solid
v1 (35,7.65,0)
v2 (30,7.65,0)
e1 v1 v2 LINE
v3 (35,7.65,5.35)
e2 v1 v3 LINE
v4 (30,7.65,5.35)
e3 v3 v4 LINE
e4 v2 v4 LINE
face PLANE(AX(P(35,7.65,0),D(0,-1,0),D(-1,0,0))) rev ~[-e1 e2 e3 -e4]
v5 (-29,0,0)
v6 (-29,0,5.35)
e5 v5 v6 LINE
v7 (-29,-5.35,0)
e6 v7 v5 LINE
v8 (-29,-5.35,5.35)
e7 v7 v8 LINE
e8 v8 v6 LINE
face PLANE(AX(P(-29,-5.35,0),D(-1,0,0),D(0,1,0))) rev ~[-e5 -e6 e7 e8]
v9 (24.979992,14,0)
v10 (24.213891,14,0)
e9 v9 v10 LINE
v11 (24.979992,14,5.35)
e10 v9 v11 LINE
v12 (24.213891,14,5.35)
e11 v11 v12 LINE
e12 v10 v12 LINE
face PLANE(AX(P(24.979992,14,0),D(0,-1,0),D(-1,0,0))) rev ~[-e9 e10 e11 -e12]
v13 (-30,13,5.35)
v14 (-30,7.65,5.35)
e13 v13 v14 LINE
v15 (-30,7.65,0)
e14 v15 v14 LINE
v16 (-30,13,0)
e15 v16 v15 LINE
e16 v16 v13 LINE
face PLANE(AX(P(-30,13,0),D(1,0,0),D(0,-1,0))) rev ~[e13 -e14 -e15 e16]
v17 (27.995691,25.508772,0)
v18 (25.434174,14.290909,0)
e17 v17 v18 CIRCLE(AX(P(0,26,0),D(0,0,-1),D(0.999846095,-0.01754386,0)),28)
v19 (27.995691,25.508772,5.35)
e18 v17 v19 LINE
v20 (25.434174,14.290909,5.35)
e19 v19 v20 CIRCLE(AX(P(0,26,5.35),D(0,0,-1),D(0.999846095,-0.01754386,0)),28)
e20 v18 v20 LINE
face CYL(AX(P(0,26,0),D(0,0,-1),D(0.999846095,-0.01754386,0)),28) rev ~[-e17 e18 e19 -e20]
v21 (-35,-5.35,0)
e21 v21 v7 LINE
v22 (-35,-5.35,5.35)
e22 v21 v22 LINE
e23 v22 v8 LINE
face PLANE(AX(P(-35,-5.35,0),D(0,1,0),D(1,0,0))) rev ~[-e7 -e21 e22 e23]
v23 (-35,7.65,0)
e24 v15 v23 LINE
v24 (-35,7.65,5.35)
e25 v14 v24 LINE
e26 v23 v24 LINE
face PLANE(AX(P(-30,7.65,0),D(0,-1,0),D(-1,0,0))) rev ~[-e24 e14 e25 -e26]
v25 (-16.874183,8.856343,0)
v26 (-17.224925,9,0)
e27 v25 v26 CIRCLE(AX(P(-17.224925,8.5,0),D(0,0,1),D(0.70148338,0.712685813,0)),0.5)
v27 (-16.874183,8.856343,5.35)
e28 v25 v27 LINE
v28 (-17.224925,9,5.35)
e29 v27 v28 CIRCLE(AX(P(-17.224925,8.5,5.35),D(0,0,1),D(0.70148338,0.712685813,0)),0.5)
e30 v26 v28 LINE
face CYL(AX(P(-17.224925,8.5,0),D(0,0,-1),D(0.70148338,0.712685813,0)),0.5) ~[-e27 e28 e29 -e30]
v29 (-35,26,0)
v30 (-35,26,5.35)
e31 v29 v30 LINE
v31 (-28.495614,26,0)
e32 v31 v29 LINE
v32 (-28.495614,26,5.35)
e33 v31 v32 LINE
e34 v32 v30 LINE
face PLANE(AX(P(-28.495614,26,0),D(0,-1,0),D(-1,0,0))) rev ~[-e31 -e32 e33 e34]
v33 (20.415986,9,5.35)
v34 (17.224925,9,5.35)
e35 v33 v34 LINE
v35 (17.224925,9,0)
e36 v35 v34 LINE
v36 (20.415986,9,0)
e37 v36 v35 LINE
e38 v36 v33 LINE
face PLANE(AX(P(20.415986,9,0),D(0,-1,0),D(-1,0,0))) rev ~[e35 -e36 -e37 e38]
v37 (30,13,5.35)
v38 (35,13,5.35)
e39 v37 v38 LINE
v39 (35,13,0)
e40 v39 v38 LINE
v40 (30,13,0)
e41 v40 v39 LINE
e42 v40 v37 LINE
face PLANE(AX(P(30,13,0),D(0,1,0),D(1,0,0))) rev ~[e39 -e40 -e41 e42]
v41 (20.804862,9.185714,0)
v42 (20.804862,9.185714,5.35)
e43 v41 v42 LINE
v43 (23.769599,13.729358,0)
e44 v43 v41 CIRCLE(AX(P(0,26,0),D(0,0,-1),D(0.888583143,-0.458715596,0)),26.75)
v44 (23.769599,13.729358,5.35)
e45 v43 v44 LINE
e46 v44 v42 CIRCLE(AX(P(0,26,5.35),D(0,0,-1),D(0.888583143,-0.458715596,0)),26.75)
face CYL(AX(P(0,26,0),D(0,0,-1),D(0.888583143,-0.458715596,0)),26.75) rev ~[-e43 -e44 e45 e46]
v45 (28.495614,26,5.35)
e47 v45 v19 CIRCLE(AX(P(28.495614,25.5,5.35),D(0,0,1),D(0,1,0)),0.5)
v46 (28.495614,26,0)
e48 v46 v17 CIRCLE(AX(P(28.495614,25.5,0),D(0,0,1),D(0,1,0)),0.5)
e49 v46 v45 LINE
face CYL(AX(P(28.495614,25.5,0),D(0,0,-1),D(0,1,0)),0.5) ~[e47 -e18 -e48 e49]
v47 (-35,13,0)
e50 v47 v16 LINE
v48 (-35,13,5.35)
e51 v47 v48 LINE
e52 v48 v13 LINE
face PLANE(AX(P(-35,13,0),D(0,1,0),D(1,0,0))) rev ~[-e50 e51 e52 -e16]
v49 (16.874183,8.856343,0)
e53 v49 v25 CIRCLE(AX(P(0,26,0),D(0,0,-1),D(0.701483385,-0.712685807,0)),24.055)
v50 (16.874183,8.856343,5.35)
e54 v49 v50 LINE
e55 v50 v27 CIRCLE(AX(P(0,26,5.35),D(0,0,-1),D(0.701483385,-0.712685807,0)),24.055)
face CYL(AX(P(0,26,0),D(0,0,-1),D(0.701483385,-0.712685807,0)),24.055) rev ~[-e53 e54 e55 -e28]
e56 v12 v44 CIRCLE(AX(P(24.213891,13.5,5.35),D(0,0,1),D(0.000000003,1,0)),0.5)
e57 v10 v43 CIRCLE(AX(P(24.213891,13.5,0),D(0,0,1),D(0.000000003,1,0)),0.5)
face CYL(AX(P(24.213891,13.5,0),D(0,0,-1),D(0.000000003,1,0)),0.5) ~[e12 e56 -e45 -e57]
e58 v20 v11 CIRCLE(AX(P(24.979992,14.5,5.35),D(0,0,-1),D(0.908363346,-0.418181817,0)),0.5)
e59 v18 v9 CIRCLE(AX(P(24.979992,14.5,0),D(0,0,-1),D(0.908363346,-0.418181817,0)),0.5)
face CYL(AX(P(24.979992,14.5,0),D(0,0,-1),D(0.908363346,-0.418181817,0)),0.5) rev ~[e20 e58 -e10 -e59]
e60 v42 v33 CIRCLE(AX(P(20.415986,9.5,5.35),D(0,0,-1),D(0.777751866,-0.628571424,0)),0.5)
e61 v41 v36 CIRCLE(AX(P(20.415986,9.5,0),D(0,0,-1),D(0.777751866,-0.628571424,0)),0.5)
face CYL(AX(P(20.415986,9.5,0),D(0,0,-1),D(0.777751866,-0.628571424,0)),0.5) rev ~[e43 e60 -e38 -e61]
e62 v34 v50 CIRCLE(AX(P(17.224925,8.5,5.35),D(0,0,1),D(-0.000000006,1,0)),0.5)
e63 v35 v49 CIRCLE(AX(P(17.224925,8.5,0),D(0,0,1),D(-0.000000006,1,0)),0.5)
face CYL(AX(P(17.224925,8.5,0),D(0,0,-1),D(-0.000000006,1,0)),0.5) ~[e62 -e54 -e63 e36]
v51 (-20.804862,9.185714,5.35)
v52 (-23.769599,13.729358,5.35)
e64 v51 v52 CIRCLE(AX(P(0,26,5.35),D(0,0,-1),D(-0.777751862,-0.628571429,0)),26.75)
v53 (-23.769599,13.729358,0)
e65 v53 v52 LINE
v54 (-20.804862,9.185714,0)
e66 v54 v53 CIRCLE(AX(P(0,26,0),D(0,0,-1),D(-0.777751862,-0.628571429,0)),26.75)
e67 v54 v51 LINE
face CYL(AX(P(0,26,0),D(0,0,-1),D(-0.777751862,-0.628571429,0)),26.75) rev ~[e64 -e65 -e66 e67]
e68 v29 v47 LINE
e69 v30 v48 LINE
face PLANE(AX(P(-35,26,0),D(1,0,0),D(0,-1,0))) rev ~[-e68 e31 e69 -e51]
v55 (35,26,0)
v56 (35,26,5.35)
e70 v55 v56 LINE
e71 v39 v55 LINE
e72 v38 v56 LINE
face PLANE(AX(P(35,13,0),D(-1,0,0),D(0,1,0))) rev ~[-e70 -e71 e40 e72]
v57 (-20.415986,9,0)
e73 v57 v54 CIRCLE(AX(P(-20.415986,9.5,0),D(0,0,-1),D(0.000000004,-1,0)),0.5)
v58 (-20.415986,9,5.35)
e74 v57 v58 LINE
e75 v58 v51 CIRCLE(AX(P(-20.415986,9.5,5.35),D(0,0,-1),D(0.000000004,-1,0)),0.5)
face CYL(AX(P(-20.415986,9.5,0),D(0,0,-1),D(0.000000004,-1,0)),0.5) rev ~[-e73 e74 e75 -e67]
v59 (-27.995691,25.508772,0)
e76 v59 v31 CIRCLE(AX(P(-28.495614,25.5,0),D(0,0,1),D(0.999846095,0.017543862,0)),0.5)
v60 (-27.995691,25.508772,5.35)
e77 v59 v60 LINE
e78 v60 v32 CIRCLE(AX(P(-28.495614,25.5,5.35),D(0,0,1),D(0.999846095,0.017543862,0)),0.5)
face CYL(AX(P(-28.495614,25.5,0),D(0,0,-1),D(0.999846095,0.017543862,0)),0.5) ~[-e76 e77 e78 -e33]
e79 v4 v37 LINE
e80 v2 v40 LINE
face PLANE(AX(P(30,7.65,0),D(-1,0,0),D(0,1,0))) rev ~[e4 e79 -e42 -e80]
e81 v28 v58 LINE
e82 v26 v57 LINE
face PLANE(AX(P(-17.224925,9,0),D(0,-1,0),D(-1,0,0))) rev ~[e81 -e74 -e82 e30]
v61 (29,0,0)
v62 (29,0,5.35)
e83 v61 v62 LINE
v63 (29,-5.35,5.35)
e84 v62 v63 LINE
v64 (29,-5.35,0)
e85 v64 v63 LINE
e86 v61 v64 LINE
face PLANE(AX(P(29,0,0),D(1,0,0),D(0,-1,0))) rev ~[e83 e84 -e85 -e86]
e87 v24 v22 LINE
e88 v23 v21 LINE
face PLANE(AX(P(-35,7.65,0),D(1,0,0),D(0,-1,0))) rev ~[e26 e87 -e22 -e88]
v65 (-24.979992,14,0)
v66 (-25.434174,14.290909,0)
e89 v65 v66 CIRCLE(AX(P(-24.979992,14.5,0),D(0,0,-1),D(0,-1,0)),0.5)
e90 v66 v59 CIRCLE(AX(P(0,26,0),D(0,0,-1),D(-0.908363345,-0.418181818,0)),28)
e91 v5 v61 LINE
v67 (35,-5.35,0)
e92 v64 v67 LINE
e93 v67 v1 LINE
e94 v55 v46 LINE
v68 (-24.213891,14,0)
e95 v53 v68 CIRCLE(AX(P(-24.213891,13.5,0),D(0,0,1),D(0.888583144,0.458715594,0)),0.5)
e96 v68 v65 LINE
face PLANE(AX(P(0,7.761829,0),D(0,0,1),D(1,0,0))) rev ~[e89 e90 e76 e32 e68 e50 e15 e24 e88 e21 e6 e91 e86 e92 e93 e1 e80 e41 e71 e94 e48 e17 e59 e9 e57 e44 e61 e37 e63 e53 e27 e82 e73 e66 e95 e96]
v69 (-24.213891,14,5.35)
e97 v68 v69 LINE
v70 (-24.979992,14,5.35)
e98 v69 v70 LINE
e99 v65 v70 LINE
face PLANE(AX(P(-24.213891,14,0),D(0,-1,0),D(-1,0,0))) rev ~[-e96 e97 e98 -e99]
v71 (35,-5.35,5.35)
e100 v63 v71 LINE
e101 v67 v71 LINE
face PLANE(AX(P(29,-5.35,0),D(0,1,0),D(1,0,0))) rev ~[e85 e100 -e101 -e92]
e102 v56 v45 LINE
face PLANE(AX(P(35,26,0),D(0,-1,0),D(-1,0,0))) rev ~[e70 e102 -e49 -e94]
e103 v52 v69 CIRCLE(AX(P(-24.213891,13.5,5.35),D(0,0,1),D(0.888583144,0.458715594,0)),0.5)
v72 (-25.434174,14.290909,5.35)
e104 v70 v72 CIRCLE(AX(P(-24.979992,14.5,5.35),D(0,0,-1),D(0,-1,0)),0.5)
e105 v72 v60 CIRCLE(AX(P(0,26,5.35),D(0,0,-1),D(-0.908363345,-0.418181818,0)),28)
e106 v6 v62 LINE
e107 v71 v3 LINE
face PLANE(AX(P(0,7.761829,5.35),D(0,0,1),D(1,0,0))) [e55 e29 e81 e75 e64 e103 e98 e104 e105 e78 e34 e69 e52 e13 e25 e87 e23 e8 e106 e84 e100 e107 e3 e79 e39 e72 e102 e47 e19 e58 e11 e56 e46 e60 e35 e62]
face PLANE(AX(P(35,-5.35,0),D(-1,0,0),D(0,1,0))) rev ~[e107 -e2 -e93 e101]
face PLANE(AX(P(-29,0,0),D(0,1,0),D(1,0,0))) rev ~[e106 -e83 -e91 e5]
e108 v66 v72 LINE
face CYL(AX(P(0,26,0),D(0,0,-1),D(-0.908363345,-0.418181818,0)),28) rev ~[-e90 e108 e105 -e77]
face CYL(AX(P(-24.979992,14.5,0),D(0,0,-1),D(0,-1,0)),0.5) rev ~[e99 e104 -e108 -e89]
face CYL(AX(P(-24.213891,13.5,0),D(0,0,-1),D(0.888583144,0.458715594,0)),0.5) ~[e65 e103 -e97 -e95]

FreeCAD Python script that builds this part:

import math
import FreeCAD as App
import Part
import Sketcher

V = App.Vector
Q = App.Units.Quantity

doc = App.newDocument("Part")
body = doc.addObject("PartDesign::Body", "Body")

sketch1 = body.newObject("Sketcher::SketchObject", "Sketch")
sketch1.AttachmentSupport = (doc.getObject("XY_Plane"), [""])
sketch1.MapMode = "FlatFace"
sketch1.addGeometry([
    Part.LineSegment(V(-29, 0, 0), V(29, 0, 0)),
    Part.LineSegment(V(29, 0, 0), V(29, -5.35, 0)),
    Part.LineSegment(V(29, -5.35, 0), V(35, -5.35, 0)),
    Part.LineSegment(V(35, -5.35, 0), V(35, 7.65, 0)),
    Part.LineSegment(V(35, 7.65, 0), V(30, 7.65, 0)),
    Part.LineSegment(V(30, 7.65, 0), V(30, 13, 0)),
    Part.LineSegment(V(30, 13, 0), V(35, 13, 0)),
    Part.LineSegment(V(35, 13, 0), V(35, 26, 0)),
    Part.LineSegment(V(35, 26, 0), V(28.5, 26, 0)),
    Part.ArcOfCircle(Part.Circle(V(28.5, 25.5, 0), V(0, 0, 1), 0.5), math.radians(90), math.radians(179)),
    Part.ArcOfCircle(Part.Circle(V(0, 26, 0), V(0, 0, 1), 28), math.radians(-25), math.radians(-1)),
    Part.ArcOfCircle(Part.Circle(V(24.98, 14.5, 0), V(0, 0, 1), 0.5), math.radians(-90), math.radians(-25)),
    Part.LineSegment(V(24.98, 14, 0), V(24.21, 14, 0)),
    Part.ArcOfCircle(Part.Circle(V(24.21, 13.5, 0), V(0, 0, 1), 0.5), math.radians(90), math.radians(153)),
    Part.ArcOfCircle(Part.Circle(V(0, 26, 0), V(0, 0, 1), 26.75), math.radians(-38.94), math.radians(-27.3)),
    Part.ArcOfCircle(Part.Circle(V(20.42, 9.5, 0), V(0, 0, 1), 0.5), math.radians(-90), math.radians(-39)),
    Part.LineSegment(V(20.42, 9, 0), V(17.22, 9, 0)),
    Part.ArcOfCircle(Part.Circle(V(17.22, 8.5, 0), V(0, 0, 1), 0.5), math.radians(90), math.radians(135)),
    Part.ArcOfCircle(Part.Circle(V(0, 26, 0), V(0, 0, 1), 24.05), math.radians(-135), math.radians(-45)),
    Part.ArcOfCircle(Part.Circle(V(-17.22, 8.5, 0), V(0, 0, 1), 0.5), math.radians(45), math.radians(90)),
    Part.LineSegment(V(-17.22, 9, 0), V(-20.42, 9, 0)),
    Part.ArcOfCircle(Part.Circle(V(-20.42, 9.5, 0), V(0, 0, 1), 0.5), math.radians(-141), math.radians(-90)),
    Part.ArcOfCircle(Part.Circle(V(0, 26, 0), V(0, 0, 1), 26.75), math.radians(-152.7), math.radians(-141.06)),
    Part.ArcOfCircle(Part.Circle(V(-24.21, 13.5, 0), V(0, 0, 1), 0.5), math.radians(27), math.radians(90)),
    Part.LineSegment(V(-24.21, 14, 0), V(-24.98, 14, 0)),
    Part.ArcOfCircle(Part.Circle(V(-24.98, 14.5, 0), V(0, 0, 1), 0.5), math.radians(-155), math.radians(-90)),
    Part.ArcOfCircle(Part.Circle(V(0, 26, 0), V(0, 0, 1), 28), math.radians(-179), math.radians(-155)),
    Part.ArcOfCircle(Part.Circle(V(-28.5, 25.5, 0), V(0, 0, 1), 0.5), math.radians(1), math.radians(90)),
    Part.LineSegment(V(-28.5, 26, 0), V(-35, 26, 0)),
    Part.LineSegment(V(-35, 26, 0), V(-35, 13, 0)),
    Part.LineSegment(V(-35, 13, 0), V(-30, 13, 0)),
    Part.LineSegment(V(-30, 13, 0), V(-30, 7.65, 0)),
    Part.LineSegment(V(-30, 7.65, 0), V(-35, 7.65, 0)),
    Part.LineSegment(V(-35, 7.65, 0), V(-35, -5.35, 0)),
    Part.LineSegment(V(-35, -5.35, 0), V(-29, -5.35, 0)),
    Part.LineSegment(V(-29, -5.35, 0), V(-29, 0, 0)),
], False)
sketch1.addConstraint([
    Sketcher.Constraint("Coincident", 0, 2, 1, 1),
    Sketcher.Constraint("Coincident", 1, 2, 2, 1),
    Sketcher.Constraint("Coincident", 2, 2, 3, 1),
    Sketcher.Constraint("Coincident", 3, 2, 4, 1),
    Sketcher.Constraint("Coincident", 4, 2, 5, 1),
    Sketcher.Constraint("Coincident", 5, 2, 6, 1),
    Sketcher.Constraint("Coincident", 6, 2, 7, 1),
    Sketcher.Constraint("Coincident", 7, 2, 8, 1),
    Sketcher.Constraint("Tangent", 8, 2, 9, 1),
    Sketcher.Constraint("Tangent", 9, 2, 10, 2),
    Sketcher.Constraint("Tangent", 10, 1, 11, 2),
    Sketcher.Constraint("Tangent", 11, 1, 12, 1),
    Sketcher.Constraint("Tangent", 12, 2, 13, 1),
    Sketcher.Constraint("Tangent", 13, 2, 14, 2),
    Sketcher.Constraint("Tangent", 14, 1, 15, 2),
    Sketcher.Constraint("Tangent", 15, 1, 16, 1),
    Sketcher.Constraint("Tangent", 16, 2, 17, 1),
    Sketcher.Constraint("Tangent", 17, 2, 18, 2),
    Sketcher.Constraint("Tangent", 18, 1, 19, 1),
    Sketcher.Constraint("Tangent", 19, 2, 20, 1),
    Sketcher.Constraint("Tangent", 20, 2, 21, 2),
    Sketcher.Constraint("Tangent", 21, 1, 22, 2),
    Sketcher.Constraint("Tangent", 22, 1, 23, 1),
    Sketcher.Constraint("Tangent", 23, 2, 24, 1),
    Sketcher.Constraint("Tangent", 24, 2, 25, 2),
    Sketcher.Constraint("Tangent", 25, 1, 26, 2),
    Sketcher.Constraint("Tangent", 26, 1, 27, 1),
    Sketcher.Constraint("Tangent", 27, 2, 28, 1),
    Sketcher.Constraint("Coincident", 28, 2, 29, 1),
    Sketcher.Constraint("Coincident", 29, 2, 30, 1),
    Sketcher.Constraint("Coincident", 30, 2, 31, 1),
    Sketcher.Constraint("Coincident", 31, 2, 32, 1),
    Sketcher.Constraint("Coincident", 32, 2, 33, 1),
    Sketcher.Constraint("Coincident", 33, 2, 34, 1),
    Sketcher.Constraint("Coincident", 34, 2, 35, 1),
    Sketcher.Constraint("Coincident", 35, 2, 0, 1),
    Sketcher.Constraint("Horizontal", 0),
    Sketcher.Constraint("Vertical", 1),
    Sketcher.Constraint("Horizontal", 2),
    Sketcher.Constraint("Vertical", 3),
    Sketcher.Constraint("Horizontal", 4),
    Sketcher.Constraint("Vertical", 5),
    Sketcher.Constraint("Horizontal", 6),
    Sketcher.Constraint("Vertical", 7),
    Sketcher.Constraint("Horizontal", 8),
    Sketcher.Constraint("Horizontal", 12),
    Sketcher.Constraint("Horizontal", 16),
    Sketcher.Constraint("Horizontal", 20),
    Sketcher.Constraint("Horizontal", 24),
    Sketcher.Constraint("Horizontal", 28),
    Sketcher.Constraint("Vertical", 29),
    Sketcher.Constraint("Horizontal", 30),
    Sketcher.Constraint("Vertical", 31),
    Sketcher.Constraint("Horizontal", 32),
    Sketcher.Constraint("Vertical", 33),
    Sketcher.Constraint("Horizontal", 34),
    Sketcher.Constraint("Vertical", 35),
    Sketcher.Constraint("Coincident", 14, 3, 10, 3),
    Sketcher.Constraint("Coincident", 18, 3, 10, 3),
    Sketcher.Constraint("Coincident", 22, 3, 10, 3),
    Sketcher.Constraint("Coincident", 26, 3, 10, 3),
    Sketcher.Constraint("Equal", 9, 11),
    Sketcher.Constraint("Equal", 11, 13),
    Sketcher.Constraint("Equal", 13, 15),
    Sketcher.Constraint("Equal", 15, 17),
    Sketcher.Constraint("Equal", 17, 19),
    Sketcher.Constraint("Equal", 19, 21),
    Sketcher.Constraint("Equal", 14, 22),
    Sketcher.Constraint("Equal", 21, 23),
    Sketcher.Constraint("Equal", 23, 25),
    Sketcher.Constraint("Equal", 10, 26),
    Sketcher.Constraint("Equal", 25, 27),
    Sketcher.Constraint("Symmetric", 0, 2, 35, 2, -1, 1),
    Sketcher.Constraint("Symmetric", 17, 3, 19, 3, -2),
    Sketcher.Constraint("Symmetric", 7, 2, 28, 2, -2),
    Sketcher.Constraint("Symmetric", 5, 2, 30, 2, -2),
    Sketcher.Constraint("Symmetric", 3, 2, 32, 2, -2),
    Sketcher.Constraint("Horizontal", 13, 3, 23, 3),
    Sketcher.Constraint("Horizontal", 26, 3, 7, 2),
    Sketcher.Constraint("Horizontal", 2, 2, 33, 2),
    Sketcher.Constraint("Vertical", 3, 2, 6, 2),
    Sketcher.Constraint("Equal", 1, 5),
    Sketcher.Constraint("Equal", 3, 7),
    Sketcher.Constraint("Radius", 10, Q("28 mm")),
    Sketcher.Constraint("Radius", 9, Q("0.5 mm")),
    Sketcher.Constraint("DistanceX", 0, 1, 0, 2, Q("58 mm")),
    Sketcher.Constraint("DistanceX", 2, 1, 2, 2, Q("6 mm")),
    Sketcher.Constraint("DistanceX", 4, 2, 4, 1, Q("5 mm")),
    Sketcher.Constraint("DistanceY", 3, 1, 3, 2, Q("13 mm")),
    Sketcher.Constraint("Radius", 14, Q("26.75 mm")),
    Sketcher.Constraint("DistanceY", -1, 1, 11, 1, Q("14 mm")),
    Sketcher.Constraint("DistanceY", -1, 1, 15, 1, Q("9 mm")),
    Sketcher.Constraint("Radius", 18, Q("24.055 mm")),
    Sketcher.Constraint("DistanceY", 1, 2, 1, 1, Q("5.35 mm")),
])
pad1 = body.newObject("PartDesign::Pad", "Pad")
pad1.Profile = sketch1
pad1.Length = 5.35

doc.recompute()
